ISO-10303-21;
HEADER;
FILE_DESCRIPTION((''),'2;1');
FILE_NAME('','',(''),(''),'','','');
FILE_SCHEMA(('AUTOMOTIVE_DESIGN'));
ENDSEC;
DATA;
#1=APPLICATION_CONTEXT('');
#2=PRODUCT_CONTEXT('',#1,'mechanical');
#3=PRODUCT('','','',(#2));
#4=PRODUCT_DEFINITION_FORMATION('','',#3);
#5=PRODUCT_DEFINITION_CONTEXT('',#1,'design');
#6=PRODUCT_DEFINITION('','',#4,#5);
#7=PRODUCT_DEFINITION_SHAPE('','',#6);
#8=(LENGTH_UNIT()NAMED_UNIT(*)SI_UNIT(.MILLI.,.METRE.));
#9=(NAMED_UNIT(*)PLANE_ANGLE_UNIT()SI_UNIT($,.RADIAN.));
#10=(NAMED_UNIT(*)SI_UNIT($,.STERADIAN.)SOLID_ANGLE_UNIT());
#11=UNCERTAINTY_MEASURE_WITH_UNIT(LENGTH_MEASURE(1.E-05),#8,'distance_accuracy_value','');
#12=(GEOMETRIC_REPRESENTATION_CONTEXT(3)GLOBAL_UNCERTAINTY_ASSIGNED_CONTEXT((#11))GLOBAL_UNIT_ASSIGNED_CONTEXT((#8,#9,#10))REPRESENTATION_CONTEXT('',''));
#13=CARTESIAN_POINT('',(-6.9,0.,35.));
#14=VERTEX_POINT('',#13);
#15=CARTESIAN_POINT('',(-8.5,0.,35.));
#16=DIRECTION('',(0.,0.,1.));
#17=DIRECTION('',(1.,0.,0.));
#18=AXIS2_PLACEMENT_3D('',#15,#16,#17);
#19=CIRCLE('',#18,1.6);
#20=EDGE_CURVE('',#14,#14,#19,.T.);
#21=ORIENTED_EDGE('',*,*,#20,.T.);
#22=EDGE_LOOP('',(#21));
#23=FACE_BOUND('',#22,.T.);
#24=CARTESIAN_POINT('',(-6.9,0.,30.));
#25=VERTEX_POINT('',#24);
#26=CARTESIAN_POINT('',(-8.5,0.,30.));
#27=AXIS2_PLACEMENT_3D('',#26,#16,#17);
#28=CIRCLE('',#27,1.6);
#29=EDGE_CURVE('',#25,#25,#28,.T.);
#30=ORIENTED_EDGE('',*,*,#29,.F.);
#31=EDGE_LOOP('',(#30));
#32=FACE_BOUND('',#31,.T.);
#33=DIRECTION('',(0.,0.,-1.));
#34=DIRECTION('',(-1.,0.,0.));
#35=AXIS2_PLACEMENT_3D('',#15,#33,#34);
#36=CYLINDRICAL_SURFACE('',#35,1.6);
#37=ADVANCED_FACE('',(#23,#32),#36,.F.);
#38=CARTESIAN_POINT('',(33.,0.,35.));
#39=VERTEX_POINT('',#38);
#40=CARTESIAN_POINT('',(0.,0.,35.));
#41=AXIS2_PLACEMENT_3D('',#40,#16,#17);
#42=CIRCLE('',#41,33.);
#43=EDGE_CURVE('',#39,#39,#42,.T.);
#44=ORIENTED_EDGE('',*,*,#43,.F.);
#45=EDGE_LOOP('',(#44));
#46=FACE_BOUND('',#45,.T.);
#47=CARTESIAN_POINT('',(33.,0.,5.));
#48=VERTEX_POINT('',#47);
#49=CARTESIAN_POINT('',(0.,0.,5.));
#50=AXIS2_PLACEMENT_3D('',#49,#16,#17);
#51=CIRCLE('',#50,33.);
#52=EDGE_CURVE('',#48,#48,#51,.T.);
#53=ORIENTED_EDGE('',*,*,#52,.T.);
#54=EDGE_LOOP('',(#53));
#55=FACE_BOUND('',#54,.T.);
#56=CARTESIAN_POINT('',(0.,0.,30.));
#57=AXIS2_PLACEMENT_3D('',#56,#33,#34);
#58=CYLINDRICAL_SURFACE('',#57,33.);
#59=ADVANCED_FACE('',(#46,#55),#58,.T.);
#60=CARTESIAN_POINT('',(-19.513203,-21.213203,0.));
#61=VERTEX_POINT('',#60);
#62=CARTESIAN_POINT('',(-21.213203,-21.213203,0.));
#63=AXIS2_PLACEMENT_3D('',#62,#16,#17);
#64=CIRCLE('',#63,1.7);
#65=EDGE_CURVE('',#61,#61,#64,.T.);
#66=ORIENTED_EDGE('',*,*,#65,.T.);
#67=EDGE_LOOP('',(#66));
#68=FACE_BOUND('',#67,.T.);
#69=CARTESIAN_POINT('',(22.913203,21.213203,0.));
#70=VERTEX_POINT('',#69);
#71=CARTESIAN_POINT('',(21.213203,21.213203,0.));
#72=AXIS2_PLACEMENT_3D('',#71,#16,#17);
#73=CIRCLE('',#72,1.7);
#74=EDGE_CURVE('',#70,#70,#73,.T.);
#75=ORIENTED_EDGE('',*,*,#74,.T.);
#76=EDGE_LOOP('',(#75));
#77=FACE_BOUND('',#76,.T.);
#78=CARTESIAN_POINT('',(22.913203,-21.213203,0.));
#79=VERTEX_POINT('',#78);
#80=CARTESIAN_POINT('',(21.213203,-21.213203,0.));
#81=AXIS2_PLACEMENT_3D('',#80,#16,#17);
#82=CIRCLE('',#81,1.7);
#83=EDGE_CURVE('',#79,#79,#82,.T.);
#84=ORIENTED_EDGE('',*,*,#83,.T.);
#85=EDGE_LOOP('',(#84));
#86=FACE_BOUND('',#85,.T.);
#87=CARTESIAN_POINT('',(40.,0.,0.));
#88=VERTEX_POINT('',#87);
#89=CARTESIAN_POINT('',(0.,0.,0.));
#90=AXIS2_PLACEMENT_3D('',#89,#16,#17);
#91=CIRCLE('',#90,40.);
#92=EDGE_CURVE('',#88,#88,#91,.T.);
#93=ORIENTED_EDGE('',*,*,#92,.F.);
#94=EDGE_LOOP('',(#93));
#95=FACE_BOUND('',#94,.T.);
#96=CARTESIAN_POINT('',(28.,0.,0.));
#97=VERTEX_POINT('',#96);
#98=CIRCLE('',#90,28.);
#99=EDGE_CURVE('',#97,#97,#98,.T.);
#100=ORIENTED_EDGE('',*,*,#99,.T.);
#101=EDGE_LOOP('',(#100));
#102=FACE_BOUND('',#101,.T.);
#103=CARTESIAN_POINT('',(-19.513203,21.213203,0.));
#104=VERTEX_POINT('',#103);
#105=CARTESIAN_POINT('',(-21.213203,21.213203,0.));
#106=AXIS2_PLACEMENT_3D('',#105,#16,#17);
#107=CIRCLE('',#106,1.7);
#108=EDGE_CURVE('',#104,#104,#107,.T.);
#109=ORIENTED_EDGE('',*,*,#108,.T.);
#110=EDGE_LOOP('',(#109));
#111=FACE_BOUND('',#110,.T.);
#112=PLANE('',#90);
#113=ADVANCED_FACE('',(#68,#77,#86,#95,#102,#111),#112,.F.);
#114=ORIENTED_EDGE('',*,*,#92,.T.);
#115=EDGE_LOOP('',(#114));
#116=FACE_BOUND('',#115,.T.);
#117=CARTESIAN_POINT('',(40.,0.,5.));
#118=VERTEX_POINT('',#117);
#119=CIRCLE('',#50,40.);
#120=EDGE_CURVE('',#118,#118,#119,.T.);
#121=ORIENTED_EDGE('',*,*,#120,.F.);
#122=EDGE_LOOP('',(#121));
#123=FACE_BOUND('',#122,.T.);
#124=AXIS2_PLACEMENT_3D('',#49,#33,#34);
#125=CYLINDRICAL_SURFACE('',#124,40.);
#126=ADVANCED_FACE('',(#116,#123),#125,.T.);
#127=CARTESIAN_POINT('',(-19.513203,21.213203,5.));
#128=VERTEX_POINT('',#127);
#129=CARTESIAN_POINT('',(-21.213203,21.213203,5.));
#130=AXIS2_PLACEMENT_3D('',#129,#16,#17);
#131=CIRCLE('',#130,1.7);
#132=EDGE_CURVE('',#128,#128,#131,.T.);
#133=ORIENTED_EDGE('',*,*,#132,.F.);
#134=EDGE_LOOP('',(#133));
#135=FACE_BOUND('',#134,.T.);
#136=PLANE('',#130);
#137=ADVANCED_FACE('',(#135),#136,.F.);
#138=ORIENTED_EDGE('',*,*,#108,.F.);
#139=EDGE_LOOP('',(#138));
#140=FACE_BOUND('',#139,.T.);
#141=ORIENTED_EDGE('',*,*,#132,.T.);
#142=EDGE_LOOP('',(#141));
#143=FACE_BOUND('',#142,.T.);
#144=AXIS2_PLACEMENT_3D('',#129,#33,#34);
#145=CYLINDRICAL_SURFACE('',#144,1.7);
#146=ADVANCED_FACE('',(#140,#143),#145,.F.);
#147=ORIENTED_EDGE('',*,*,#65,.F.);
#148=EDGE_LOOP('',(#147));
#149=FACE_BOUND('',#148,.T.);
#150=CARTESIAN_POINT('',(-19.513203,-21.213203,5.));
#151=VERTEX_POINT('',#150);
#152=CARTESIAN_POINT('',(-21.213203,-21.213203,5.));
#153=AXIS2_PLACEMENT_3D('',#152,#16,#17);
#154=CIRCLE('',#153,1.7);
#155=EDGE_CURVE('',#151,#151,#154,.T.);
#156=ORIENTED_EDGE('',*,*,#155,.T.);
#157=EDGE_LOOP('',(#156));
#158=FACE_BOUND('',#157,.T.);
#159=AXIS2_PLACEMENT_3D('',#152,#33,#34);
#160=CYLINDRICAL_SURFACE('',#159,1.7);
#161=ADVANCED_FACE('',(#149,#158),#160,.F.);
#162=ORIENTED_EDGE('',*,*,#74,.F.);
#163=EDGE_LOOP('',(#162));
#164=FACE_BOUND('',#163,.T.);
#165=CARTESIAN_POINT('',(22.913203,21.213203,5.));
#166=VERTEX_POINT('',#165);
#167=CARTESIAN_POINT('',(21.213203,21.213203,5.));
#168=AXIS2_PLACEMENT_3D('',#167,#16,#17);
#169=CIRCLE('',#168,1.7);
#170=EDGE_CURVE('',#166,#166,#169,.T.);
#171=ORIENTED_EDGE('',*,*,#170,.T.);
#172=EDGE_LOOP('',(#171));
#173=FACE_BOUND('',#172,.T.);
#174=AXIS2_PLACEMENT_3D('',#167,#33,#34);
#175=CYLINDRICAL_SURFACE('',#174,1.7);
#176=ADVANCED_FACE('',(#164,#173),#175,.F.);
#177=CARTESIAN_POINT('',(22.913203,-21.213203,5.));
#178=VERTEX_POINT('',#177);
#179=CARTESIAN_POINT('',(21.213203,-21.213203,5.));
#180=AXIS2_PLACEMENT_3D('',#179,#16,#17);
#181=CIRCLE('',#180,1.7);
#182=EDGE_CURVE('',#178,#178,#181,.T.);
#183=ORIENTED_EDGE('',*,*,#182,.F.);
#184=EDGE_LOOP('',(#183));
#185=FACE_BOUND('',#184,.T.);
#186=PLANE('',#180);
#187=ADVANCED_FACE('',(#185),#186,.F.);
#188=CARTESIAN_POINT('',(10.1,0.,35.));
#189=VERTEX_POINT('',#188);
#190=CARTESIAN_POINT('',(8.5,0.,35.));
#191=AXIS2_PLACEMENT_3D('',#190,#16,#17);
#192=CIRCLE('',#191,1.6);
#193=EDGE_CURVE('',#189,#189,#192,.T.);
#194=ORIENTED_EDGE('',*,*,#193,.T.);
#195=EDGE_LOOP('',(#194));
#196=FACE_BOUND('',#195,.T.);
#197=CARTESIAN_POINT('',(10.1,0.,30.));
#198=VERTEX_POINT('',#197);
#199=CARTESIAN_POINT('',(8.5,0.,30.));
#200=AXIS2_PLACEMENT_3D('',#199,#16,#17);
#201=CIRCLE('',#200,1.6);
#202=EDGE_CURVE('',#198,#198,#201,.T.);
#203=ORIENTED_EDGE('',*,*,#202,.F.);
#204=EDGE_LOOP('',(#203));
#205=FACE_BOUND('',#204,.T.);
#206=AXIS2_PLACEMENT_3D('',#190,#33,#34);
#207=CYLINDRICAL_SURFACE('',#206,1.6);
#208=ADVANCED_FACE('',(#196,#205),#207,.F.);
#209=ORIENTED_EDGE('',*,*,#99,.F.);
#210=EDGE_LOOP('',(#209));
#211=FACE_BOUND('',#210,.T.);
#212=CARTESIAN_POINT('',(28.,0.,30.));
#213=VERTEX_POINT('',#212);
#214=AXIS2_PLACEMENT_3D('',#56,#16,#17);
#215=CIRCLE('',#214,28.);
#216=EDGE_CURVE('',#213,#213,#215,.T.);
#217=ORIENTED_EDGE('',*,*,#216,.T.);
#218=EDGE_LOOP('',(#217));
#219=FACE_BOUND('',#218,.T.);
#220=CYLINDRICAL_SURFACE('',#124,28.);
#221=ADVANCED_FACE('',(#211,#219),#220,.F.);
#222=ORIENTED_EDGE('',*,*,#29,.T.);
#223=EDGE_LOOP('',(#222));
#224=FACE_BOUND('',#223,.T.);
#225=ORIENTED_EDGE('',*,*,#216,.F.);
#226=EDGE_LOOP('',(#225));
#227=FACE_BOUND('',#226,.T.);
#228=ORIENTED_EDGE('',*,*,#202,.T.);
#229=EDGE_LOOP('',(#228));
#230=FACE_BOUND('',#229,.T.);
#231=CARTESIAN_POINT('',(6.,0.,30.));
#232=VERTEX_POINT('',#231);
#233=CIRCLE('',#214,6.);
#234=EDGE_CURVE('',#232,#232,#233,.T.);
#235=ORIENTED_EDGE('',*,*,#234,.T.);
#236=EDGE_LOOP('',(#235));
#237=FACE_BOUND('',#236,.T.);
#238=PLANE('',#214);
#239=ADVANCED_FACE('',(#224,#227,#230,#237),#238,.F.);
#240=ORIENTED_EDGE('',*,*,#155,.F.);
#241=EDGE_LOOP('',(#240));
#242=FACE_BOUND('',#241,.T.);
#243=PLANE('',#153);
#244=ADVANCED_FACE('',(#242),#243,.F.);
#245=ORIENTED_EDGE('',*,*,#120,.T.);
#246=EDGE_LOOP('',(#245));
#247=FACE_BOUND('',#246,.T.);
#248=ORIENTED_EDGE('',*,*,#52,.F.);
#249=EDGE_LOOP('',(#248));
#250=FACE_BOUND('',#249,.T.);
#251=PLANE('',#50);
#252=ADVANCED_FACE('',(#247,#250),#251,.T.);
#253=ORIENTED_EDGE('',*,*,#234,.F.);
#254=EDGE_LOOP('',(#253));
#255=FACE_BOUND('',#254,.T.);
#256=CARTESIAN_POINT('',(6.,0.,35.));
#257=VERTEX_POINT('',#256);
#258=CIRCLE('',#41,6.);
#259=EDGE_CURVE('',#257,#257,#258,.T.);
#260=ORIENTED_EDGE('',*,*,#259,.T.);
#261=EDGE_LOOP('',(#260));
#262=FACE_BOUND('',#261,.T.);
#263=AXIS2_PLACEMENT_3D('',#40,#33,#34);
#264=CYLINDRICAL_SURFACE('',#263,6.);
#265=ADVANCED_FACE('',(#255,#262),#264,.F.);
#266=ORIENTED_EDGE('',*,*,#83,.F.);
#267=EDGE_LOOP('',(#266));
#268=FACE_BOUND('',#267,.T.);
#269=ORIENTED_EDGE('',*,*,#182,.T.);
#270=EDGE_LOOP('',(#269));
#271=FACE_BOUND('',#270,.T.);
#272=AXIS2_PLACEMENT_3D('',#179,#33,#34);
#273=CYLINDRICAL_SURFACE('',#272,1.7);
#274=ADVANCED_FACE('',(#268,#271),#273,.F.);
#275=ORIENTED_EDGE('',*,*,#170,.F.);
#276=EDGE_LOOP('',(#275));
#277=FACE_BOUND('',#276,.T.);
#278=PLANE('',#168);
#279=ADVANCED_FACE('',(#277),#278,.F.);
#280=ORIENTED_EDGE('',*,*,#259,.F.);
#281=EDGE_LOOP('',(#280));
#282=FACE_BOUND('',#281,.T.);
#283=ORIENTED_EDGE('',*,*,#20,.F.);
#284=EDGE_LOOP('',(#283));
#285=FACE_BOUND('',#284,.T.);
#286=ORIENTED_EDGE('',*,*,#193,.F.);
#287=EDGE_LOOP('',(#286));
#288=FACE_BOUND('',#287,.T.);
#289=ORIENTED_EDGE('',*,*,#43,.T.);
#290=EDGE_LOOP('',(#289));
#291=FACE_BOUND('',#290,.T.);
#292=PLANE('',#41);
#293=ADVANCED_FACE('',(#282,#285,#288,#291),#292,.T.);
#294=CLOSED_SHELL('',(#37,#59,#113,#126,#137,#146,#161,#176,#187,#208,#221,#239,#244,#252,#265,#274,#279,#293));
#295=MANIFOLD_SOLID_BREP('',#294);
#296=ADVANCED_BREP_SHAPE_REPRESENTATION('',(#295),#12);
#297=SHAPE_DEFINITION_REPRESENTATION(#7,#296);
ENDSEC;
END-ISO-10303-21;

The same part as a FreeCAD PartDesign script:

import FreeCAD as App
import Part
import Sketcher

doc = App.newDocument("Part")
params = doc.addObject("Spreadsheet::Sheet", "Params")
for row, (alias, value) in enumerate([
    ("sketch1_diameter", "80 mm"),
    ("sketch1_diameter2", "56 mm"),
    ("pad1_length", "5 mm"),
    ("sketch2_diameter", "66 mm"),
    ("sketch2_diameter2", "56 mm"),
    ("pad2_length", "25 mm"),
    ("sketch3_diameter", "66 mm"),
    ("pad3_length", "5 mm"),
    ("sketch4_diameter", "12 mm"),
    ("pocket1_length", "5 mm"),
    ("sketch5_diameter", "3.2 mm"),
    ("pocket2_length", "5 mm"),
    ("sketch6_diameter", "3.4 mm"),
    ("pocket3_length", "5 mm"),
], start=1):
    params.set(f"A{row}", alias)
    params.set(f"B{row}", "=" + value)
    params.setAlias(f"B{row}", alias)

body = doc.addObject("PartDesign::Body", "Body")

# Sketch on XY plane
sketch1 = body.newObject("Sketcher::SketchObject", "Sketch")
sketch1.AttachmentSupport = (doc.getObject("XY_Plane"), [""])
sketch1.MapMode = "FlatFace"
sketch1.addGeometry([
    Part.Circle(App.Vector(0, 0, 0), App.Vector(0, 0, 1), 40),
    Part.Circle(App.Vector(0, 0, 0), App.Vector(0, 0, 1), 28),
], False)
sketch1.addConstraint([
    Sketcher.Constraint("Coincident", 0, 3, -1, 1),
    Sketcher.Constraint("Coincident", 1, 3, -1, 1),
    Sketcher.Constraint("Diameter", 0, 80.0),
    Sketcher.Constraint("Diameter", 1, 56.0),
])
sketch1.setExpression("Constraints[2]", "Params.sketch1_diameter")
sketch1.setExpression("Constraints[3]", "Params.sketch1_diameter2")
pad1 = body.newObject("PartDesign::Pad", "Pad")
pad1.Profile = sketch1
pad1.setExpression("Length", "Params.pad1_length")

# Sketch on XY plane
sketch2 = body.newObject("Sketcher::SketchObject", "Sketch001")
sketch2.AttachmentSupport = (doc.getObject("XY_Plane"), [""])
sketch2.MapMode = "FlatFace"
sketch2.AttachmentOffset = App.Placement(App.Vector(0, 0, 5), App.Rotation())
sketch2.addGeometry([
    Part.Circle(App.Vector(0, 0, 0), App.Vector(0, 0, 1), 33),
    Part.Circle(App.Vector(0, 0, 0), App.Vector(0, 0, 1), 28),
], False)
sketch2.addConstraint([
    Sketcher.Constraint("Coincident", 0, 3, -1, 1),
    Sketcher.Constraint("Coincident", 1, 3, -1, 1),
    Sketcher.Constraint("Diameter", 0, 66.0),
    Sketcher.Constraint("Diameter", 1, 56.0),
])
sketch2.setExpression("Constraints[2]", "Params.sketch2_diameter")
sketch2.setExpression("Constraints[3]", "Params.sketch2_diameter2")
pad2 = body.newObject("PartDesign::Pad", "Pad001")
pad2.Profile = sketch2
pad2.setExpression("Length", "Params.pad2_length")

# Sketch on XY plane
sketch3 = body.newObject("Sketcher::SketchObject", "Sketch002")
sketch3.AttachmentSupport = (doc.getObject("XY_Plane"), [""])
sketch3.MapMode = "FlatFace"
sketch3.AttachmentOffset = App.Placement(App.Vector(0, 0, 30), App.Rotation())
sketch3.addGeometry(Part.Circle(App.Vector(0, 0, 0), App.Vector(0, 0, 1), 33), False)
sketch3.addConstraint([
    Sketcher.Constraint("Coincident", 0, 3, -1, 1),
    Sketcher.Constraint("Diameter", 0, 66.0),
])
sketch3.setExpression("Constraints[1]", "Params.sketch3_diameter")
pad3 = body.newObject("PartDesign::Pad", "Pad002")
pad3.Profile = sketch3
pad3.setExpression("Length", "Params.pad3_length")

# Sketch on XY plane
sketch4 = body.newObject("Sketcher::SketchObject", "Sketch003")
sketch4.AttachmentSupport = (doc.getObject("XY_Plane"), [""])
sketch4.MapMode = "FlatFace"
sketch4.AttachmentOffset = App.Placement(App.Vector(0, 0, 30), App.Rotation())
sketch4.addGeometry(Part.Circle(App.Vector(0, 0, 0), App.Vector(0, 0, 1), 6), False)
sketch4.addConstraint([
    Sketcher.Constraint("Coincident", 0, 3, -1, 1),
    Sketcher.Constraint("Diameter", 0, 12.0),
])
sketch4.setExpression("Constraints[1]", "Params.sketch4_diameter")
pocket1 = body.newObject("PartDesign::Pocket", "Pocket")
pocket1.Profile = sketch4
pocket1.setExpression("Length", "Params.pocket1_length")
pocket1.Reversed = True

# Sketch on XY plane
sketch5 = body.newObject("Sketcher::SketchObject", "Sketch004")
sketch5.AttachmentSupport = (doc.getObject("XY_Plane"), [""])
sketch5.MapMode = "FlatFace"
sketch5.AttachmentOffset = App.Placement(App.Vector(0, 0, 30), App.Rotation())
sketch5.addGeometry([
    Part.Circle(App.Vector(-8.5, 0, 0), App.Vector(0, 0, 1), 1.6),
    Part.Circle(App.Vector(8.5, 0, 0), App.Vector(0, 0, 1), 1.6),
], False)
sketch5.addConstraint([
    Sketcher.Constraint("Equal", 0, 1),
    Sketcher.Constraint("Symmetric", 0, 3, 1, 3, -1, 1),
    Sketcher.Constraint("PointOnObject", 0, 3, -1),
    Sketcher.Constraint("Diameter", 0, 3.2),
    Sketcher.Constraint("DistanceX", 0, 3, 1, 3, 17.0),
])
sketch5.setExpression("Constraints[3]", "Params.sketch5_diameter")
pocket2 = body.newObject("PartDesign::Pocket", "Pocket001")
pocket2.Profile = sketch5
pocket2.setExpression("Length", "Params.pocket2_length")
pocket2.Reversed = True

# Sketch on XY plane
sketch6 = body.newObject("Sketcher::SketchObject", "Sketch005")
sketch6.AttachmentSupport = (doc.getObject("XY_Plane"), [""])
sketch6.MapMode = "FlatFace"
sketch6.addGeometry([
    Part.Circle(App.Vector(21.2, 21.2, 0), App.Vector(0, 0, 1), 1.7),
    Part.Circle(App.Vector(-21.2, 21.2, 0), App.Vector(0, 0, 1), 1.7),
    Part.Circle(App.Vector(-21.2, -21.2, 0), App.Vector(0, 0, 1), 1.7),
    Part.Circle(App.Vector(21.2, -21.2, 0), App.Vector(0, 0, 1), 1.7),
], False)
sketch6.addConstraint([
    Sketcher.Constraint("Equal", 0, 1),
    Sketcher.Constraint("Equal", 1, 2),
    Sketcher.Constraint("Equal", 2, 3),
    Sketcher.Constraint("Symmetric", 0, 3, 2, 3, -1, 1),
    Sketcher.Constraint("Symmetric", 1, 3, 3, 3, -1, 1),
    Sketcher.Constraint("Symmetric", 0, 3, 1, 3, -2),
    Sketcher.Constraint("Diameter", 0, 3.4),
    Sketcher.Constraint("DistanceX", -1, 1, 0, 3, 21.213203),
    Sketcher.Constraint("DistanceY", -1, 1, 0, 3, 21.213203),
])
sketch6.setExpression("Constraints[6]", "Params.sketch6_diameter")
pocket3 = body.newObject("PartDesign::Pocket", "Pocket002")
pocket3.Profile = sketch6
pocket3.setExpression("Length", "Params.pocket3_length")
pocket3.Reversed = True

doc.recompute()
